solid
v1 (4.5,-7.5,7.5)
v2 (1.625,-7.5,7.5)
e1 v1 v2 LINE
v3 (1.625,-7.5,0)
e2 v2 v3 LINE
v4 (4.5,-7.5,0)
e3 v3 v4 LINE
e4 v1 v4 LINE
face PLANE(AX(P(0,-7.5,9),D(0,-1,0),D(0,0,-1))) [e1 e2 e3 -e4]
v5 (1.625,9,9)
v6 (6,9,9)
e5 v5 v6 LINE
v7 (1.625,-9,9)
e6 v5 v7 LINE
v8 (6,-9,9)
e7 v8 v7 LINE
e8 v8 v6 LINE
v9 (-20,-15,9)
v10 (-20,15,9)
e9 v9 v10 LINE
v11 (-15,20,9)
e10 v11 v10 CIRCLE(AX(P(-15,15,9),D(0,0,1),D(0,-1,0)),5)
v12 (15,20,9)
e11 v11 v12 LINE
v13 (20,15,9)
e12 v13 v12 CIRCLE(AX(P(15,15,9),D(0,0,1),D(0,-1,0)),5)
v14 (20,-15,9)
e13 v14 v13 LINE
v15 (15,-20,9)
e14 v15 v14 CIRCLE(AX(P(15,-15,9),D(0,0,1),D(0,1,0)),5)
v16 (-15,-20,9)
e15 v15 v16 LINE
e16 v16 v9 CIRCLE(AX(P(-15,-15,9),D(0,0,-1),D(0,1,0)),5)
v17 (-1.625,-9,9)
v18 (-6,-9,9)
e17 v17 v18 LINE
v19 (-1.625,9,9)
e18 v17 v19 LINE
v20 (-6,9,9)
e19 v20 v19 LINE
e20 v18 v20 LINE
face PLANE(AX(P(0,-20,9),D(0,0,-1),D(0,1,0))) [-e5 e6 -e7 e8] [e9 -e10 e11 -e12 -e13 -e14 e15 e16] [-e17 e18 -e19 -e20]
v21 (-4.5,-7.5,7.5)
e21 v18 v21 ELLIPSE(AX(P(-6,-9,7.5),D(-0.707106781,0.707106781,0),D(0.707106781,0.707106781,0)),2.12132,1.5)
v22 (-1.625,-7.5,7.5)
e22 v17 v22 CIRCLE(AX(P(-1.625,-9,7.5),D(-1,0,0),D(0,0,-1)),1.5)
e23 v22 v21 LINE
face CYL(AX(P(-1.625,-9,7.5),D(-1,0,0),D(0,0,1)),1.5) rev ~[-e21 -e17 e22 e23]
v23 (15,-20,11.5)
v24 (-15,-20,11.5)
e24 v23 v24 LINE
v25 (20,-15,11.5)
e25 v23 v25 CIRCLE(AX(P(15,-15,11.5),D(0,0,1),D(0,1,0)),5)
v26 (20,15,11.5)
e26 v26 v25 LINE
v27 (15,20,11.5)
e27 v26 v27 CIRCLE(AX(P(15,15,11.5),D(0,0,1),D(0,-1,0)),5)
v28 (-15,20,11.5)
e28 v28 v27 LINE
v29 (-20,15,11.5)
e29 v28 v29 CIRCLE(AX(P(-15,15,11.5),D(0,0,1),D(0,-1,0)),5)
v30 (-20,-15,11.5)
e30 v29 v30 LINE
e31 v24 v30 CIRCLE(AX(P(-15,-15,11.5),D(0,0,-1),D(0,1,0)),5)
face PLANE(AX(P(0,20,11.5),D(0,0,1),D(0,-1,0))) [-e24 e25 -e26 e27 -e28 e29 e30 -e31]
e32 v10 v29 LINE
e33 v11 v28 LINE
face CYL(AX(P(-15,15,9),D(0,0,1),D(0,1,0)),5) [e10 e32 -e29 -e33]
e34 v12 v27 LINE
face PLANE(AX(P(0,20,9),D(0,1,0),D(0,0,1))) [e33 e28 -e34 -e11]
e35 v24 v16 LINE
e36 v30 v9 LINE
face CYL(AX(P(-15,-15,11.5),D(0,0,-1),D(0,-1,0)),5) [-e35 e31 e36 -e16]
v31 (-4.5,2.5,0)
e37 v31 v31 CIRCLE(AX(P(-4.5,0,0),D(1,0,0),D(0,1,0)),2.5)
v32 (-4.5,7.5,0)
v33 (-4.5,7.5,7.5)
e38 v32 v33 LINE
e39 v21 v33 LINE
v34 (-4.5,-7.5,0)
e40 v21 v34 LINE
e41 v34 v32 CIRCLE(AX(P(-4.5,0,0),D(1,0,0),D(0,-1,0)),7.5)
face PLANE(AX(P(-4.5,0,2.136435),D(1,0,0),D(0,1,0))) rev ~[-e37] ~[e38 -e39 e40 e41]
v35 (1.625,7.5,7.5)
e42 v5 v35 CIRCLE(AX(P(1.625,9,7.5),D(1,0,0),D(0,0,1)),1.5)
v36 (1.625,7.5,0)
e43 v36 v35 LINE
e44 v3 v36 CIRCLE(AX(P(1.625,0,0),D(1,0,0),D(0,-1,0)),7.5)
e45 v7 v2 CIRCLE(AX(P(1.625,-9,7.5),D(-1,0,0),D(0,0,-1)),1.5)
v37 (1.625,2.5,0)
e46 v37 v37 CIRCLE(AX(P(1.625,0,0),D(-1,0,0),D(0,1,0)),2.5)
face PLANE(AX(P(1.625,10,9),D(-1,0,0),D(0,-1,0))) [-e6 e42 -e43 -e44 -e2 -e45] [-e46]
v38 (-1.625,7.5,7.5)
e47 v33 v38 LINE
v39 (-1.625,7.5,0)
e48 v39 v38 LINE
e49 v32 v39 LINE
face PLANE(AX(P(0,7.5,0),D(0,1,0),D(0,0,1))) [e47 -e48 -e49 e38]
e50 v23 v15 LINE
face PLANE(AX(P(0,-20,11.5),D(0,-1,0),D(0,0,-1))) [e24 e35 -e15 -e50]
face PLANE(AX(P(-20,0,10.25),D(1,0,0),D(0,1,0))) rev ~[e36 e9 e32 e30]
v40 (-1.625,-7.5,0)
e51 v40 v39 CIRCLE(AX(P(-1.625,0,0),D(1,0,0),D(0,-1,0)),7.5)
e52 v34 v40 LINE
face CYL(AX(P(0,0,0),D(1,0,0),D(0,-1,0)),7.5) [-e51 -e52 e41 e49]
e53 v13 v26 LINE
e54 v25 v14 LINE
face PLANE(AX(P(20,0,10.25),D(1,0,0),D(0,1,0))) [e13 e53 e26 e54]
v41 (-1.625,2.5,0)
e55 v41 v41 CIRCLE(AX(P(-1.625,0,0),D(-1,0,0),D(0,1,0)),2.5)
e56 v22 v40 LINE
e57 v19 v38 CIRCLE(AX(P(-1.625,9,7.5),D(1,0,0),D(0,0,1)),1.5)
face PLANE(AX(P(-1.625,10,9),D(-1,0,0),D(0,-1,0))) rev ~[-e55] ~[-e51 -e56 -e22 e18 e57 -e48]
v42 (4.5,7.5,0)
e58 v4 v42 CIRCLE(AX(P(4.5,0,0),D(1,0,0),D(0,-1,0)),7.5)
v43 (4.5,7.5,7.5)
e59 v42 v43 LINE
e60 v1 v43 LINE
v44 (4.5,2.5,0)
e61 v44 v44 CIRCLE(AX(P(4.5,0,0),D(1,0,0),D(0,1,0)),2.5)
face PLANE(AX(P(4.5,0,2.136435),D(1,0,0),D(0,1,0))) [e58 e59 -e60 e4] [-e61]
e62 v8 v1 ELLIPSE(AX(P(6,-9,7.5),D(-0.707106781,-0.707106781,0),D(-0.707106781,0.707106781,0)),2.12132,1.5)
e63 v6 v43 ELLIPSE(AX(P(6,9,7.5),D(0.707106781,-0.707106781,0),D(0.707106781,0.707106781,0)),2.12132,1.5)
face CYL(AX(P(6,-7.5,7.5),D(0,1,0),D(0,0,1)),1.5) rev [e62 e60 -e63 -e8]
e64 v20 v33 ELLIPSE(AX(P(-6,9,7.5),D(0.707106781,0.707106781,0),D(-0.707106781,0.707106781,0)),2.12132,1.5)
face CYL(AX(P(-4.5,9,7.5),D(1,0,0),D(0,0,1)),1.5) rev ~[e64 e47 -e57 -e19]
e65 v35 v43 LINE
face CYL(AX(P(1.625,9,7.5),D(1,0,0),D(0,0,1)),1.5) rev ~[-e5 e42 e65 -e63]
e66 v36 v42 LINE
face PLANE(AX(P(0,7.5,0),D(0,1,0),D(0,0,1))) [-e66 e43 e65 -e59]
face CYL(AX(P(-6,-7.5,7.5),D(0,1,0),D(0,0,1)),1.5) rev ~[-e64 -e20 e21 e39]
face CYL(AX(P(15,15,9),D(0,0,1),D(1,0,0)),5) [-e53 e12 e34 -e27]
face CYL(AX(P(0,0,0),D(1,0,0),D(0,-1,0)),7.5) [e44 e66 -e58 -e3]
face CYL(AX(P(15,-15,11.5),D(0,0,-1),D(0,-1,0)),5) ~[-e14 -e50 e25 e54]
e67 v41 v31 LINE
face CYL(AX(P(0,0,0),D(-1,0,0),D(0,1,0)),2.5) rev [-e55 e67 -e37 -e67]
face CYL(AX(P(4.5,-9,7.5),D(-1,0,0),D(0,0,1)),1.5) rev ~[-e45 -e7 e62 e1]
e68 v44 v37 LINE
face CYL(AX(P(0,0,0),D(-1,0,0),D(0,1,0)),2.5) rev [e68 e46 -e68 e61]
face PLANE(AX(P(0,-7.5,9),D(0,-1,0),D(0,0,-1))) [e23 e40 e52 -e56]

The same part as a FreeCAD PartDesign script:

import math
import FreeCAD as App
import Part
import Sketcher
from FreeCAD import Vector
Q = App.Units.Quantity


def edges_at(feature, points):
    """Names of the edges that pass closest to the given points."""
    edges = feature.Shape.Edges
    near = lambda p: min(range(len(edges)), key=lambda i: edges[i].distToShape(Part.Vertex(*p))[0])
    return sorted({f"Edge{near(p) + 1}" for p in points})

doc = App.newDocument("Part")
body = doc.addObject("PartDesign::Body", "Body")

# Sketch on YZ plane
sketch1 = body.newObject("Sketcher::SketchObject", "Sketch")
sketch1.AttachmentSupport = (doc.getObject("YZ_Plane"), [""])
sketch1.MapMode = "FlatFace"
sketch1.addGeometry(Part.LineSegment(Vector(-7.5, 9, 0), Vector(-7.5, 0, 0)), False)
sketch1.addGeometry(Part.ArcOfCircle(Part.Circle(Vector(0, 0, 0), Vector(0, 0, 1), 7.5), math.radians(180), math.radians(360)), False)
sketch1.addGeometry(Part.LineSegment(Vector(7.5, 0, 0), Vector(7.5, 9, 0)), False)
sketch1.addGeometry(Part.LineSegment(Vector(7.5, 9, 0), Vector(20, 9, 0)), False)
sketch1.addGeometry(Part.LineSegment(Vector(20, 9, 0), Vector(20, 11.5, 0)), False)
sketch1.addGeometry(Part.LineSegment(Vector(20, 11.5, 0), Vector(-20, 11.5, 0)), False)
sketch1.addGeometry(Part.LineSegment(Vector(-20, 11.5, 0), Vector(-20, 9, 0)), False)
sketch1.addGeometry(Part.LineSegment(Vector(-20, 9, 0), Vector(-7.5, 9, 0)), False)
sketch1.addGeometry(Part.Circle(Vector(0, 0, 0), Vector(0, 0, 1), 2.5), False)
sketch1.addConstraint(Sketcher.Constraint("Tangent", 0, 2, 1, 1))
sketch1.addConstraint(Sketcher.Constraint("Tangent", 1, 2, 2, 1))
sketch1.addConstraint(Sketcher.Constraint("Coincident", 2, 2, 3, 1))
sketch1.addConstraint(Sketcher.Constraint("Coincident", 3, 2, 4, 1))
sketch1.addConstraint(Sketcher.Constraint("Coincident", 4, 2, 5, 1))
sketch1.addConstraint(Sketcher.Constraint("Coincident", 5, 2, 6, 1))
sketch1.addConstraint(Sketcher.Constraint("Coincident", 6, 2, 7, 1))
sketch1.addConstraint(Sketcher.Constraint("Coincident", 7, 2, 0, 1))
sketch1.addConstraint(Sketcher.Constraint("Vertical", 0))
sketch1.addConstraint(Sketcher.Constraint("Vertical", 2))
sketch1.addConstraint(Sketcher.Constraint("Horizontal", 3))
sketch1.addConstraint(Sketcher.Constraint("Vertical", 4))
sketch1.addConstraint(Sketcher.Constraint("Horizontal", 5))
sketch1.addConstraint(Sketcher.Constraint("Vertical", 6))
sketch1.addConstraint(Sketcher.Constraint("Horizontal", 7))
sketch1.addConstraint(Sketcher.Constraint("Coincident", 1, 3, -1, 1))
sketch1.addConstraint(Sketcher.Constraint("Coincident", 8, 3, -1, 1))
sketch1.addConstraint(Sketcher.Constraint("Symmetric", 3, 2, 6, 2, -2))
sketch1.addConstraint(Sketcher.Constraint("Diameter", 8, Q("5 mm")))
sketch1.addConstraint(Sketcher.Constraint("Radius", 1, Q("7.5 mm")))
sketch1.addConstraint(Sketcher.Constraint("DistanceX", 5, 2, 5, 1, Q("40 mm")))
sketch1.addConstraint(Sketcher.Constraint("DistanceY", 0, 2, 0, 1, Q("9 mm")))
sketch1.addConstraint(Sketcher.Constraint("DistanceY", 4, 1, 4, 2, Q("2.5 mm")))
pad1 = body.newObject("PartDesign::Pad", "Pad")
pad1.Profile = sketch1
pad1.Length = 9
pad1.Midplane = True

# Sketch on YZ plane
sketch2 = body.newObject("Sketcher::SketchObject", "Sketch001")
sketch2.AttachmentSupport = (doc.getObject("YZ_Plane"), [""])
sketch2.MapMode = "FlatFace"
sketch2.addGeometry(Part.LineSegment(Vector(-20, 9, 0), Vector(20, 9, 0)), False)
sketch2.addGeometry(Part.LineSegment(Vector(20, 9, 0), Vector(20, 11.5, 0)), False)
sketch2.addGeometry(Part.LineSegment(Vector(20, 11.5, 0), Vector(-20, 11.5, 0)), False)
sketch2.addGeometry(Part.LineSegment(Vector(-20, 11.5, 0), Vector(-20, 9, 0)), False)
sketch2.addConstraint(Sketcher.Constraint("Coincident", 0, 2, 1, 1))
sketch2.addConstraint(Sketcher.Constraint("Coincident", 1, 2, 2, 1))
sketch2.addConstraint(Sketcher.Constraint("Coincident", 2, 2, 3, 1))
sketch2.addConstraint(Sketcher.Constraint("Coincident", 3, 2, 0, 1))
sketch2.addConstraint(Sketcher.Constraint("Horizontal", 0))
sketch2.addConstraint(Sketcher.Constraint("Vertical", 1))
sketch2.addConstraint(Sketcher.Constraint("Horizontal", 2))
sketch2.addConstraint(Sketcher.Constraint("Vertical", 3))
sketch2.addConstraint(Sketcher.Constraint("DistanceX", 0, 1, 0, 2, Q("40 mm")))
sketch2.addConstraint(Sketcher.Constraint("DistanceY", 1, 1, 1, 2, Q("2.5 mm")))
sketch2.addConstraint(Sketcher.Constraint("DistanceX", -1, 1, 0, 2, Q("20 mm")))
sketch2.addConstraint(Sketcher.Constraint("DistanceY", -1, 1, 0, 2, Q("9 mm")))
pad2 = body.newObject("PartDesign::Pad", "Pad001")
pad2.Profile = sketch2
pad2.Length = 40
pad2.Midplane = True

# Sketch on XY plane
sketch3 = body.newObject("Sketcher::SketchObject", "Sketch002")
sketch3.AttachmentSupport = (doc.getObject("XY_Plane"), [""])
sketch3.MapMode = "FlatFace"
sketch3.AttachmentOffset = App.Placement(Vector(0, 0, 9), App.Rotation())
sketch3.addGeometry(Part.LineSegment(Vector(-1.6, -10, 0), Vector(-1.6, 10, 0)), False)
sketch3.addGeometry(Part.LineSegment(Vector(-1.6, 10, 0), Vector(1.6, 10, 0)), False)
sketch3.addGeometry(Part.LineSegment(Vector(1.6, 10, 0), Vector(1.6, -10, 0)), False)
sketch3.addGeometry(Part.LineSegment(Vector(1.6, -10, 0), Vector(-1.6, -10, 0)), False)
sketch3.addConstraint(Sketcher.Constraint("Coincident", 0, 2, 1, 1))
sketch3.addConstraint(Sketcher.Constraint("Coincident", 1, 2, 2, 1))
sketch3.addConstraint(Sketcher.Constraint("Coincident", 2, 2, 3, 1))
sketch3.addConstraint(Sketcher.Constraint("Coincident", 3, 2, 0, 1))
sketch3.addConstraint(Sketcher.Constraint("Vertical", 0))
sketch3.addConstraint(Sketcher.Constraint("Horizontal", 1))
sketch3.addConstraint(Sketcher.Constraint("Vertical", 2))
sketch3.addConstraint(Sketcher.Constraint("Horizontal", 3))
sketch3.addConstraint(Sketcher.Constraint("Symmetric", 0, 2, 2, 2, -1, 1))
sketch3.addConstraint(Sketcher.Constraint("DistanceY", 0, 1, 0, 2, Q("20 mm")))
sketch3.addConstraint(Sketcher.Constraint("DistanceX", 1, 1, 1, 2, Q("3.25 mm")))
pocket1 = body.newObject("PartDesign::Pocket", "Pocket")
pocket1.Profile = sketch3
pocket1.Length = 25
doc.recompute()

fillet = body.newObject("PartDesign::Fillet", "Fillet")
fillet.Base = (pocket1, edges_at(pocket1, [
    (-4.5, 0, 9),
    (4.5, 0, 9),
    (-3.062, 7.5, 9),
    (3.062, 7.5, 9),
    (3.062, -7.5, 9),
    (-3.062, -7.5, 9),
]))
fillet.Radius = 1.5
doc.recompute()

fillet2 = body.newObject("PartDesign::Fillet", "Fillet001")
fillet2.Base = (fillet, edges_at(fillet, [
    (20, -20, 10.25),
    (-20, -20, 10.25),
    (20, 20, 10.25),
    (-20, 20, 10.25),
]))
fillet2.Radius = 5

doc.recompute()
